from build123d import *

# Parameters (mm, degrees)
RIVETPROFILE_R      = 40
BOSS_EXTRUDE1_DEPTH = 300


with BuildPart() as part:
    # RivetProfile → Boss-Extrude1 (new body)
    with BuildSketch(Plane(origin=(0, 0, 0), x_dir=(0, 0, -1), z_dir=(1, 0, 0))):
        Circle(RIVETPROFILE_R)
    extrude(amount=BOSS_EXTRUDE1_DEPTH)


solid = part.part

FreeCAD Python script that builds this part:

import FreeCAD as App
import Part
import Sketcher

V = App.Vector

doc = App.newDocument("Part")
body = doc.addObject("PartDesign::Body", "Body")

# Sketch on YZ plane
sketch1 = body.newObject("Sketcher::SketchObject", "Sketch")
sketch1.AttachmentSupport = (doc.getObject("YZ_Plane"), [""])
sketch1.MapMode = "FlatFace"
sketch1.addGeometry(Part.Circle(V(0, 0, 0), V(0, 0, 1), 40), False)
sketch1.addConstraint(Sketcher.Constraint("Coincident", 0, 3, -1, 1))
sketch1.addConstraint(Sketcher.Constraint("Diameter", 0, 80.0))
pad1 = body.newObject("PartDesign::Pad", "Pad")
pad1.Profile = sketch1
pad1.Length = 300

doc.recompute()
